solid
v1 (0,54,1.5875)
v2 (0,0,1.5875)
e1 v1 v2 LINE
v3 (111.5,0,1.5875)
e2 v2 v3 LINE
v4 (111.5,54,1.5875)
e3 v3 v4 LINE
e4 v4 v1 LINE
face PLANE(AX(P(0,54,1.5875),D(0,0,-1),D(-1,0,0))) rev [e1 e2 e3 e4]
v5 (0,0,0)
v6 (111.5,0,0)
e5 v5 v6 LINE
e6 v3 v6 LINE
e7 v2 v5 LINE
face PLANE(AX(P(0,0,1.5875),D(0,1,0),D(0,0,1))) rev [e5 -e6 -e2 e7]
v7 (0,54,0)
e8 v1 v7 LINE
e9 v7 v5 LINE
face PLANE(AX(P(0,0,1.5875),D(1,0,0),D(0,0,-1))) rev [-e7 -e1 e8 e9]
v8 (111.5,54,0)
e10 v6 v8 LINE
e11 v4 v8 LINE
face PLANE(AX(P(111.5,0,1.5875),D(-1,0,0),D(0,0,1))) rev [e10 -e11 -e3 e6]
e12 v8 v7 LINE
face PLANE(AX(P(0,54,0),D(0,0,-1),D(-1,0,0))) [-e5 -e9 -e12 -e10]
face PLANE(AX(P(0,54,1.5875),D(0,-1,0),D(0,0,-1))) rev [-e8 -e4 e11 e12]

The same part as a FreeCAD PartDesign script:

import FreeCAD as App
import Part
import Sketcher

doc = App.newDocument("Part")
body = doc.addObject("PartDesign::Body", "Body")

# Sketch on XY plane
sketch1 = doc.addObject("Sketcher::SketchObject", "Sketch")
body.addObject(sketch1)
sketch1.AttachmentSupport = (doc.XY_Plane, [""])
sketch1.MapMode = "FlatFace"
sketch1.addGeometry([
    Part.LineSegment(App.Vector(0, 54, 0), App.Vector(0, 0, 0)),
    Part.LineSegment(App.Vector(0, 0, 0), App.Vector(112, 0, 0)),
    Part.LineSegment(App.Vector(112, 0, 0), App.Vector(112, 54, 0)),
    Part.LineSegment(App.Vector(112, 54, 0), App.Vector(0, 54, 0)),
], False)
sketch1.addConstraint([
    Sketcher.Constraint("Coincident", 0, 2, 1, 1),
    Sketcher.Constraint("Coincident", 1, 2, 2, 1),
    Sketcher.Constraint("Coincident", 2, 2, 3, 1),
    Sketcher.Constraint("Coincident", 3, 2, 0, 1),
    Sketcher.Constraint("Vertical", 0),
    Sketcher.Constraint("Horizontal", 1),
    Sketcher.Constraint("Vertical", 2),
    Sketcher.Constraint("Horizontal", 3),
    Sketcher.Constraint("Coincident", 0, 2, -1, 1),
    Sketcher.Constraint("DistanceY", 0, 2, 0, 1, 54.0),
    Sketcher.Constraint("DistanceX", 1, 1, 1, 2, 111.5),
])
pad1 = doc.addObject("PartDesign::Pad", "Pad")
body.addObject(pad1)
pad1.Profile = sketch1
pad1.Length = 1.5875

doc.recompute()
